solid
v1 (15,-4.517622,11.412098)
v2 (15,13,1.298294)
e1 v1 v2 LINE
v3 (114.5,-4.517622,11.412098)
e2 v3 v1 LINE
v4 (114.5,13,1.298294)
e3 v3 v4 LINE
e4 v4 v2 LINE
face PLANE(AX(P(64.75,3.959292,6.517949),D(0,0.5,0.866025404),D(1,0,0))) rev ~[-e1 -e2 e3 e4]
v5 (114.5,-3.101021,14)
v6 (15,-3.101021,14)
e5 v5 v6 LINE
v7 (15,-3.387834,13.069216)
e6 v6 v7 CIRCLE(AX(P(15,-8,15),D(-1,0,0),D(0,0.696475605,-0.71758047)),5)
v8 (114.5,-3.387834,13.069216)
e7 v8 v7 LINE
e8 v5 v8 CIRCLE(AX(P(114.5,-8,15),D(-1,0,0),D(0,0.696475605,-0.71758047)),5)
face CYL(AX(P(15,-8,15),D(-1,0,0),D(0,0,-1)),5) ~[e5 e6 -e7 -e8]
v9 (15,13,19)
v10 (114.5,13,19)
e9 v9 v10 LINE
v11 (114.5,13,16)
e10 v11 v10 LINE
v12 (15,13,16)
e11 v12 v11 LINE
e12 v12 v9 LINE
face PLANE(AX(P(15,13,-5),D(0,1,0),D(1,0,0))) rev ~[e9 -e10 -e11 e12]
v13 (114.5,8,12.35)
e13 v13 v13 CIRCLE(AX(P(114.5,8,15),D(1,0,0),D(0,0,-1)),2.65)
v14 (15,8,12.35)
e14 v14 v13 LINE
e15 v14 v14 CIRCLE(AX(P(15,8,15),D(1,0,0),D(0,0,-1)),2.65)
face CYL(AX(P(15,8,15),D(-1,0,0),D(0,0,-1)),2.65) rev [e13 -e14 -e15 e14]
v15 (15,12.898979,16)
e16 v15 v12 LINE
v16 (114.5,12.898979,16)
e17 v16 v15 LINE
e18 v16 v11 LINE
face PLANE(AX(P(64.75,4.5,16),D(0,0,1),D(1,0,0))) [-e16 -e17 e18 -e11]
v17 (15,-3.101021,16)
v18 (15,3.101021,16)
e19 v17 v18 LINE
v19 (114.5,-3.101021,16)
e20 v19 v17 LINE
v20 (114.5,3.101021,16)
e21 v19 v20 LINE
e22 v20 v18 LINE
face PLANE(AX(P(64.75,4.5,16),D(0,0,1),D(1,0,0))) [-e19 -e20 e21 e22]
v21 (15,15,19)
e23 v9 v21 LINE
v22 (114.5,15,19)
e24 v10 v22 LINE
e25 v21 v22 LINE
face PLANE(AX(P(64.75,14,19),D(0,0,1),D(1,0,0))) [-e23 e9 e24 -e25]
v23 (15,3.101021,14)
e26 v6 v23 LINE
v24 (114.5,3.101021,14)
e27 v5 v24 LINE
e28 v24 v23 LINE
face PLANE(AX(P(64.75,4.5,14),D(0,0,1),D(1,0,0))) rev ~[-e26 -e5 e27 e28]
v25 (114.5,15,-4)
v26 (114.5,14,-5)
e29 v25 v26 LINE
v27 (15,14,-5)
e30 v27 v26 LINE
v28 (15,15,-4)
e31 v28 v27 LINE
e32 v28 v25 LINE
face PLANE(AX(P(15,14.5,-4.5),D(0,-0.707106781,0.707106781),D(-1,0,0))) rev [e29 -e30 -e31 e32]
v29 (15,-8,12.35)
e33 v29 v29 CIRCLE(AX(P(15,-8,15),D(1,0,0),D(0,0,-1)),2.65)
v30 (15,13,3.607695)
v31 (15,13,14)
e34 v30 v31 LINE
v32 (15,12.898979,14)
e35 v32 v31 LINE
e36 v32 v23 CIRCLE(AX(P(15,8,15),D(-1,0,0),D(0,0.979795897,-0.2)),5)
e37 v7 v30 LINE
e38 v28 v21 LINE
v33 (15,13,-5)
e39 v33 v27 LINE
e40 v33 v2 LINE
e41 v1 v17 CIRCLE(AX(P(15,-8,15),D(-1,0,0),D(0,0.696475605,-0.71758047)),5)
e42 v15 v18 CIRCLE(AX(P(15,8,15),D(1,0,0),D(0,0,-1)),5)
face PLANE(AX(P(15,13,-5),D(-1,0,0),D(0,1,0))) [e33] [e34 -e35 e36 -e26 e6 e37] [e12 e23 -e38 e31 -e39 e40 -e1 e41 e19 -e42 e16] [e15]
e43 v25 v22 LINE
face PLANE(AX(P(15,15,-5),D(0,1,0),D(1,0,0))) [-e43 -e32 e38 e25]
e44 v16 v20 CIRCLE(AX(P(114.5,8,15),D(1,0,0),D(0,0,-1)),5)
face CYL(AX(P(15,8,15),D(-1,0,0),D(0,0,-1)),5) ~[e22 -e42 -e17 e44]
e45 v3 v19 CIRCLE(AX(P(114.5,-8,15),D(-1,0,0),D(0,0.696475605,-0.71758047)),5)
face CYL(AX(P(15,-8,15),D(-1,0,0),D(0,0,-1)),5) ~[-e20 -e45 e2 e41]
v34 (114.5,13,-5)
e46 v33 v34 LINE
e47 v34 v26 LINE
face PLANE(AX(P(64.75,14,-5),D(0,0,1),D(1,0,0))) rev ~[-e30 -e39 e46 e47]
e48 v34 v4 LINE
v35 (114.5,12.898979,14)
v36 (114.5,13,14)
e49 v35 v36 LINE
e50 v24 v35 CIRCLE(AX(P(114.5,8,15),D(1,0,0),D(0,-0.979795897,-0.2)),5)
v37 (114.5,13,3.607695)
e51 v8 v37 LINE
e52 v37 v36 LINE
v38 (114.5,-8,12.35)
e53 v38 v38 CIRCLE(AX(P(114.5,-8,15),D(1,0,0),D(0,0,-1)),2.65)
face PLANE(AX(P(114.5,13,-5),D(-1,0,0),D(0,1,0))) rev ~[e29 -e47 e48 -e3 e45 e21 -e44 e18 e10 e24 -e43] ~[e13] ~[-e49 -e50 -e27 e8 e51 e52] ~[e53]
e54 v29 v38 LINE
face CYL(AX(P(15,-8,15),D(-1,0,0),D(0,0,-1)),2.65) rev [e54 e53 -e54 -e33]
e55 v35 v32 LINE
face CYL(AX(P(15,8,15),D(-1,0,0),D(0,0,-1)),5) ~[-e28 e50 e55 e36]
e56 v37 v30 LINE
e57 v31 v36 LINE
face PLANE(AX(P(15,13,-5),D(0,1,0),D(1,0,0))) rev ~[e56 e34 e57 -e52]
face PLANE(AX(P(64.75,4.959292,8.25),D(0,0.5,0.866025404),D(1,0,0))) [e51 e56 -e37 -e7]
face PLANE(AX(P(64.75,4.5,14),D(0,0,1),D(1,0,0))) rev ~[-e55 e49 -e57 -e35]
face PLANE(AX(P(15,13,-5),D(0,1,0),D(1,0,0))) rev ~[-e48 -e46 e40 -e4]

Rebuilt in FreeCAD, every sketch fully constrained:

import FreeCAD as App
import Part
import Sketcher

V = App.Vector


def edges_at(feature, points):
    """Names of the edges that pass closest to the given points."""
    edges = feature.Shape.Edges
    near = lambda p: min(range(len(edges)), key=lambda i: edges[i].distToShape(Part.Vertex(*p))[0])
    return sorted({f"Edge{near(p) + 1}" for p in points})

doc = App.newDocument("Part")
body = doc.addObject("PartDesign::Body", "Body")

# Sketch on YZ plane
sketch1 = doc.addObject("Sketcher::SketchObject", "Sketch")
body.addObject(sketch1)
sketch1.AttachmentSupport = (doc.YZ_Plane, [""])
sketch1.MapMode = "FlatFace"
sketch1.AttachmentOffset = App.Placement(V(0, 0, 15), App.Rotation())
sketch1.addGeometry(Part.Circle(V(8, 15, 0), V(0, 0, 1), 2.6), False)
sketch1.addConstraint([
    Sketcher.Constraint("Diameter", 0, 5.3),
    Sketcher.Constraint("DistanceX", -1, 1, 0, 3, 8.0),
    Sketcher.Constraint("DistanceY", -1, 1, 0, 3, 15.0),
])
pad1 = doc.addObject("PartDesign::Pad", "Pad")
body.addObject(pad1)
pad1.Profile = sketch1
pad1.Length = 99.5
body2 = doc.addObject("PartDesign::Body", "Body001")
body2.AllowCompound = True

# Sketch on YZ plane
sketch2 = doc.addObject("Sketcher::SketchObject", "Sketch001")
body2.addObject(sketch2)
sketch2.AttachmentSupport = (doc.getObject("YZ_Plane001"), [""])
sketch2.MapMode = "FlatFace"
sketch2.AttachmentOffset = App.Placement(V(0, 0, 15), App.Rotation())
sketch2.addGeometry(Part.Circle(V(-8, 15, 0), V(0, 0, 1), 2.6), False)
sketch2.addConstraint([
    Sketcher.Constraint("Diameter", 0, 5.3),
    Sketcher.Constraint("DistanceX", 0, 3, -1, 1, 8.0),
    Sketcher.Constraint("DistanceY", -1, 1, 0, 3, 15.0),
])
pad2 = doc.addObject("PartDesign::Pad", "Pad001")
body2.addObject(pad2)
pad2.Profile = sketch2
pad2.Length = 99.5
doc.recompute()

boolean = doc.addObject("PartDesign::Boolean", "Boolean")
body2.addObject(boolean)
boolean.Type = "Fuse"
boolean.addObjects([body])
body3 = doc.addObject("PartDesign::Body", "Body002")

# Sketch on YZ plane
sketch3 = doc.addObject("Sketcher::SketchObject", "Sketch002")
body3.addObject(sketch3)
sketch3.AttachmentSupport = (doc.getObject("YZ_Plane002"), [""])
sketch3.MapMode = "FlatFace"
sketch3.AttachmentOffset = App.Placement(V(0, 0, 15), App.Rotation())
sketch3.addGeometry(Part.Circle(V(8, 15, 0), V(0, 0, 1), 5), False)
sketch3.addConstraint([
    Sketcher.Constraint("Diameter", 0, 10.0),
    Sketcher.Constraint("DistanceX", -1, 1, 0, 3, 8.0),
    Sketcher.Constraint("DistanceY", -1, 1, 0, 3, 15.0),
])
pad3 = doc.addObject("PartDesign::Pad", "Pad002")
body3.addObject(pad3)
pad3.Profile = sketch3
pad3.Length = 99.5
body4 = doc.addObject("PartDesign::Body", "Body003")

# Sketch on XY plane
sketch4 = doc.addObject("Sketcher::SketchObject", "Sketch003")
body4.addObject(sketch4)
sketch4.AttachmentSupport = (doc.getObject("XY_Plane003"), [""])
sketch4.MapMode = "FlatFace"
sketch4.addGeometry([
    Part.LineSegment(V(0, 23, 0), V(0, 0, 0)),
    Part.LineSegment(V(0, 0, 0), V(100, 0, 0)),
    Part.LineSegment(V(100, 0, 0), V(100, 23, 0)),
    Part.LineSegment(V(100, 23, 0), V(0, 23, 0)),
], False)
sketch4.addConstraint([
    Sketcher.Constraint("Coincident", 0, 2, 1, 1),
    Sketcher.Constraint("Coincident", 1, 2, 2, 1),
    Sketcher.Constraint("Coincident", 2, 2, 3, 1),
    Sketcher.Constraint("Coincident", 3, 2, 0, 1),
    Sketcher.Constraint("Vertical", 0),
    Sketcher.Constraint("Horizontal", 1),
    Sketcher.Constraint("Vertical", 2),
    Sketcher.Constraint("Horizontal", 3),
    Sketcher.Constraint("Coincident", 0, 2, -1, 1),
    Sketcher.Constraint("DistanceY", 0, 2, 0, 1, 23.0),
    Sketcher.Constraint("DistanceX", 1, 1, 1, 2, 99.5),
])
pad4 = doc.addObject("PartDesign::Pad", "Pad003")
body4.addObject(pad4)
pad4.Profile = sketch4
pad4.Length = 2
body5 = doc.addObject("PartDesign::Body", "Body004")
doc.recompute()

body4.Placement = App.Placement(V(15, -6, 12.267949), App.Rotation(V(-1, 0, 0), 30))
boolean2 = doc.addObject("PartDesign::Boolean", "Boolean001")
body5.addObject(boolean2)
boolean2.Type = "Fuse"
boolean2.addObjects([body4])
body6 = doc.addObject("PartDesign::Body", "Body005")

# Sketch on XY plane
sketch5 = doc.addObject("Sketcher::SketchObject", "Sketch004")
body6.addObject(sketch5)
sketch5.AttachmentSupport = (doc.getObject("XY_Plane005"), [""])
sketch5.MapMode = "FlatFace"
sketch5.AttachmentOffset = App.Placement(V(0, 0, -5), App.Rotation())
sketch5.addGeometry([
    Part.LineSegment(V(15, 15, 0), V(15, 13, 0)),
    Part.LineSegment(V(15, 13, 0), V(114.5, 13, 0)),
    Part.LineSegment(V(114.5, 13, 0), V(114.5, 15, 0)),
    Part.LineSegment(V(114.5, 15, 0), V(15, 15, 0)),
], False)
sketch5.addConstraint([
    Sketcher.Constraint("Coincident", 0, 2, 1, 1),
    Sketcher.Constraint("Coincident", 1, 2, 2, 1),
    Sketcher.Constraint("Coincident", 2, 2, 3, 1),
    Sketcher.Constraint("Coincident", 3, 2, 0, 1),
    Sketcher.Constraint("Vertical", 0),
    Sketcher.Constraint("Horizontal", 1),
    Sketcher.Constraint("Vertical", 2),
    Sketcher.Constraint("Horizontal", 3),
    Sketcher.Constraint("DistanceY", 0, 2, 0, 1, 2.0),
    Sketcher.Constraint("DistanceX", 1, 1, 1, 2, 99.5),
    Sketcher.Constraint("DistanceX", -1, 1, 0, 2, 15.0),
    Sketcher.Constraint("DistanceY", -1, 1, 0, 2, 13.0),
])
pad5 = doc.addObject("PartDesign::Pad", "Pad004")
body6.addObject(pad5)
pad5.Profile = sketch5
pad5.Length = 24
body7 = doc.addObject("PartDesign::Body", "Body006")

# Sketch on XY plane
sketch6 = doc.addObject("Sketcher::SketchObject", "Sketch005")
body7.addObject(sketch6)
sketch6.AttachmentSupport = (doc.getObject("XY_Plane006"), [""])
sketch6.MapMode = "FlatFace"
sketch6.AttachmentOffset = App.Placement(V(0, 0, 14), App.Rotation())
sketch6.addGeometry([
    Part.LineSegment(V(15, 14, 0), V(15, -5, 0)),
    Part.LineSegment(V(15, -5, 0), V(114, -5, 0)),
    Part.LineSegment(V(114, -5, 0), V(114, 14, 0)),
    Part.LineSegment(V(114, 14, 0), V(15, 14, 0)),
], False)
sketch6.addConstraint([
    Sketcher.Constraint("Coincident", 0, 2, 1, 1),
    Sketcher.Constraint("Coincident", 1, 2, 2, 1),
    Sketcher.Constraint("Coincident", 2, 2, 3, 1),
    Sketcher.Constraint("Coincident", 3, 2, 0, 1),
    Sketcher.Constraint("Vertical", 0),
    Sketcher.Constraint("Horizontal", 1),
    Sketcher.Constraint("Vertical", 2),
    Sketcher.Constraint("Horizontal", 3),
    Sketcher.Constraint("DistanceY", 0, 2, 0, 1, 19.0),
    Sketcher.Constraint("DistanceX", 1, 1, 1, 2, 99.5),
    Sketcher.Constraint("DistanceX", -1, 1, 0, 2, 15.0),
    Sketcher.Constraint("DistanceY", 0, 2, -1, 1, 5.0),
])
pad6 = doc.addObject("PartDesign::Pad", "Pad005")
body7.addObject(pad6)
pad6.Profile = sketch6
pad6.Length = 2
body8 = doc.addObject("PartDesign::Body", "Body007")
body8.AllowCompound = True

# Sketch on YZ plane
sketch7 = doc.addObject("Sketcher::SketchObject", "Sketch006")
body8.addObject(sketch7)
sketch7.AttachmentSupport = (doc.getObject("YZ_Plane007"), [""])
sketch7.MapMode = "FlatFace"
sketch7.AttachmentOffset = App.Placement(V(0, 0, 15), App.Rotation())
sketch7.addGeometry(Part.Circle(V(-8, 15, 0), V(0, 0, 1), 5), False)
sketch7.addConstraint([
    Sketcher.Constraint("Diameter", 0, 10.0),
    Sketcher.Constraint("DistanceX", 0, 3, -1, 1, 8.0),
    Sketcher.Constraint("DistanceY", -1, 1, 0, 3, 15.0),
])
pad7 = doc.addObject("PartDesign::Pad", "Pad006")
body8.addObject(pad7)
pad7.Profile = sketch7
pad7.Length = 99.5
doc.recompute()

boolean3 = doc.addObject("PartDesign::Boolean", "Boolean002")
body8.addObject(boolean3)
boolean3.Type = "Fuse"
boolean3.addObjects([body3])
doc.recompute()

boolean4 = doc.addObject("PartDesign::Boolean", "Boolean003")
body8.addObject(boolean4)
boolean4.Type = "Fuse"
boolean4.addObjects([body5])
doc.recompute()

boolean5 = doc.addObject("PartDesign::Boolean", "Boolean004")
body8.addObject(boolean5)
boolean5.Type = "Fuse"
boolean5.addObjects([body6])
doc.recompute()

boolean6 = doc.addObject("PartDesign::Boolean", "Boolean005")
body8.addObject(boolean6)
boolean6.Type = "Fuse"
boolean6.addObjects([body7])
doc.recompute()

chamfer = doc.addObject("PartDesign::Chamfer", "Chamfer")
body8.addObject(chamfer)
chamfer.Base = (boolean6, edges_at(boolean6, [(64.75, 15, -5)]))
chamfer.Size = 1
doc.recompute()

boolean7 = doc.addObject("PartDesign::Boolean", "Boolean006")
body8.addObject(boolean7)
boolean7.Type = "Cut"
boolean7.addObjects([body2])

doc.recompute()
